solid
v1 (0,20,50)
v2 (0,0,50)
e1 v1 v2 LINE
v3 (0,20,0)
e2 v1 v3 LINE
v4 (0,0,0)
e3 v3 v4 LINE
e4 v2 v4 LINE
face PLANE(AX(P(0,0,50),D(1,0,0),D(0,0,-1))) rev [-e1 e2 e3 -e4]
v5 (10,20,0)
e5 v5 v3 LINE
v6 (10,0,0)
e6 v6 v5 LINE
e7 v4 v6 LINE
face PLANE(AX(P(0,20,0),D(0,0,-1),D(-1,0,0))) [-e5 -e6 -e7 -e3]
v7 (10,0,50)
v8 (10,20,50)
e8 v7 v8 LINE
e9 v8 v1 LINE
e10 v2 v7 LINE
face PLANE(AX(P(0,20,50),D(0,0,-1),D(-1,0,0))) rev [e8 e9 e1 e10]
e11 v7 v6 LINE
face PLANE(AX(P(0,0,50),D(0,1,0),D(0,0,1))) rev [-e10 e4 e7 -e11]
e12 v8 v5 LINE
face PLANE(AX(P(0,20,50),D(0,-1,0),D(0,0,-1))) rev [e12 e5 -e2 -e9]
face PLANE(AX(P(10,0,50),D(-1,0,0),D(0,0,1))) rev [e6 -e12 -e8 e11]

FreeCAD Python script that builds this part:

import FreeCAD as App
import Part
import Sketcher

V = App.Vector
Q = App.Units.Quantity


def add_polygon(sketch, points):
    """Adds a closed chain of lines whose ends are joined by coincident constraints."""
    first, n = sketch.GeometryCount, len(points)
    for a, b in zip(points, points[1:] + points[:1]):
        sketch.addGeometry(Part.LineSegment(App.Vector(*a, 0), App.Vector(*b, 0)), False)
    for i in range(n):
        sketch.addConstraint(Sketcher.Constraint("Coincident", first + i, 2, first + (i + 1) % n, 1))

doc = App.newDocument("Part")
params = doc.addObject("Spreadsheet::Sheet", "Params")
for row, (alias, value) in enumerate([
    ("sketch1_width", "10 mm"),
    ("sketch1_height", "20 mm"),
    ("pad1_length", "50 mm"),
], start=1):
    params.set(f"A{row}", alias)
    params.set(f"B{row}", "=" + value)
    params.setAlias(f"B{row}", alias)

body = doc.addObject("PartDesign::Body", "Body")

# Sketch on XY plane
sketch1 = body.newObject("Sketcher::SketchObject", "Sketch")
sketch1.AttachmentSupport = (doc.getObject("XY_Plane"), [""])
sketch1.MapMode = "FlatFace"
add_polygon(sketch1, [(0, 20), (0, 0), (10, 0), (10, 20)])  # lines 0-3
sketch1.addConstraint(Sketcher.Constraint("Vertical", 0))
sketch1.addConstraint(Sketcher.Constraint("Horizontal", 1))
sketch1.addConstraint(Sketcher.Constraint("Vertical", 2))
sketch1.addConstraint(Sketcher.Constraint("Horizontal", 3))
sketch1.addConstraint(Sketcher.Constraint("Coincident", 0, 2, -1, 1))
sketch1.addConstraint(Sketcher.Constraint("DistanceX", 1, 1, 1, 2, Q("10 mm")))
sketch1.addConstraint(Sketcher.Constraint("DistanceY", 0, 2, 0, 1, Q("20 mm")))
sketch1.setExpression("Constraints[9]", "Params.sketch1_width")
sketch1.setExpression("Constraints[10]", "Params.sketch1_height")
pad1 = body.newObject("PartDesign::Pad", "Pad")
pad1.Profile = sketch1
pad1.setExpression("Length", "Params.pad1_length")

doc.recompute()
